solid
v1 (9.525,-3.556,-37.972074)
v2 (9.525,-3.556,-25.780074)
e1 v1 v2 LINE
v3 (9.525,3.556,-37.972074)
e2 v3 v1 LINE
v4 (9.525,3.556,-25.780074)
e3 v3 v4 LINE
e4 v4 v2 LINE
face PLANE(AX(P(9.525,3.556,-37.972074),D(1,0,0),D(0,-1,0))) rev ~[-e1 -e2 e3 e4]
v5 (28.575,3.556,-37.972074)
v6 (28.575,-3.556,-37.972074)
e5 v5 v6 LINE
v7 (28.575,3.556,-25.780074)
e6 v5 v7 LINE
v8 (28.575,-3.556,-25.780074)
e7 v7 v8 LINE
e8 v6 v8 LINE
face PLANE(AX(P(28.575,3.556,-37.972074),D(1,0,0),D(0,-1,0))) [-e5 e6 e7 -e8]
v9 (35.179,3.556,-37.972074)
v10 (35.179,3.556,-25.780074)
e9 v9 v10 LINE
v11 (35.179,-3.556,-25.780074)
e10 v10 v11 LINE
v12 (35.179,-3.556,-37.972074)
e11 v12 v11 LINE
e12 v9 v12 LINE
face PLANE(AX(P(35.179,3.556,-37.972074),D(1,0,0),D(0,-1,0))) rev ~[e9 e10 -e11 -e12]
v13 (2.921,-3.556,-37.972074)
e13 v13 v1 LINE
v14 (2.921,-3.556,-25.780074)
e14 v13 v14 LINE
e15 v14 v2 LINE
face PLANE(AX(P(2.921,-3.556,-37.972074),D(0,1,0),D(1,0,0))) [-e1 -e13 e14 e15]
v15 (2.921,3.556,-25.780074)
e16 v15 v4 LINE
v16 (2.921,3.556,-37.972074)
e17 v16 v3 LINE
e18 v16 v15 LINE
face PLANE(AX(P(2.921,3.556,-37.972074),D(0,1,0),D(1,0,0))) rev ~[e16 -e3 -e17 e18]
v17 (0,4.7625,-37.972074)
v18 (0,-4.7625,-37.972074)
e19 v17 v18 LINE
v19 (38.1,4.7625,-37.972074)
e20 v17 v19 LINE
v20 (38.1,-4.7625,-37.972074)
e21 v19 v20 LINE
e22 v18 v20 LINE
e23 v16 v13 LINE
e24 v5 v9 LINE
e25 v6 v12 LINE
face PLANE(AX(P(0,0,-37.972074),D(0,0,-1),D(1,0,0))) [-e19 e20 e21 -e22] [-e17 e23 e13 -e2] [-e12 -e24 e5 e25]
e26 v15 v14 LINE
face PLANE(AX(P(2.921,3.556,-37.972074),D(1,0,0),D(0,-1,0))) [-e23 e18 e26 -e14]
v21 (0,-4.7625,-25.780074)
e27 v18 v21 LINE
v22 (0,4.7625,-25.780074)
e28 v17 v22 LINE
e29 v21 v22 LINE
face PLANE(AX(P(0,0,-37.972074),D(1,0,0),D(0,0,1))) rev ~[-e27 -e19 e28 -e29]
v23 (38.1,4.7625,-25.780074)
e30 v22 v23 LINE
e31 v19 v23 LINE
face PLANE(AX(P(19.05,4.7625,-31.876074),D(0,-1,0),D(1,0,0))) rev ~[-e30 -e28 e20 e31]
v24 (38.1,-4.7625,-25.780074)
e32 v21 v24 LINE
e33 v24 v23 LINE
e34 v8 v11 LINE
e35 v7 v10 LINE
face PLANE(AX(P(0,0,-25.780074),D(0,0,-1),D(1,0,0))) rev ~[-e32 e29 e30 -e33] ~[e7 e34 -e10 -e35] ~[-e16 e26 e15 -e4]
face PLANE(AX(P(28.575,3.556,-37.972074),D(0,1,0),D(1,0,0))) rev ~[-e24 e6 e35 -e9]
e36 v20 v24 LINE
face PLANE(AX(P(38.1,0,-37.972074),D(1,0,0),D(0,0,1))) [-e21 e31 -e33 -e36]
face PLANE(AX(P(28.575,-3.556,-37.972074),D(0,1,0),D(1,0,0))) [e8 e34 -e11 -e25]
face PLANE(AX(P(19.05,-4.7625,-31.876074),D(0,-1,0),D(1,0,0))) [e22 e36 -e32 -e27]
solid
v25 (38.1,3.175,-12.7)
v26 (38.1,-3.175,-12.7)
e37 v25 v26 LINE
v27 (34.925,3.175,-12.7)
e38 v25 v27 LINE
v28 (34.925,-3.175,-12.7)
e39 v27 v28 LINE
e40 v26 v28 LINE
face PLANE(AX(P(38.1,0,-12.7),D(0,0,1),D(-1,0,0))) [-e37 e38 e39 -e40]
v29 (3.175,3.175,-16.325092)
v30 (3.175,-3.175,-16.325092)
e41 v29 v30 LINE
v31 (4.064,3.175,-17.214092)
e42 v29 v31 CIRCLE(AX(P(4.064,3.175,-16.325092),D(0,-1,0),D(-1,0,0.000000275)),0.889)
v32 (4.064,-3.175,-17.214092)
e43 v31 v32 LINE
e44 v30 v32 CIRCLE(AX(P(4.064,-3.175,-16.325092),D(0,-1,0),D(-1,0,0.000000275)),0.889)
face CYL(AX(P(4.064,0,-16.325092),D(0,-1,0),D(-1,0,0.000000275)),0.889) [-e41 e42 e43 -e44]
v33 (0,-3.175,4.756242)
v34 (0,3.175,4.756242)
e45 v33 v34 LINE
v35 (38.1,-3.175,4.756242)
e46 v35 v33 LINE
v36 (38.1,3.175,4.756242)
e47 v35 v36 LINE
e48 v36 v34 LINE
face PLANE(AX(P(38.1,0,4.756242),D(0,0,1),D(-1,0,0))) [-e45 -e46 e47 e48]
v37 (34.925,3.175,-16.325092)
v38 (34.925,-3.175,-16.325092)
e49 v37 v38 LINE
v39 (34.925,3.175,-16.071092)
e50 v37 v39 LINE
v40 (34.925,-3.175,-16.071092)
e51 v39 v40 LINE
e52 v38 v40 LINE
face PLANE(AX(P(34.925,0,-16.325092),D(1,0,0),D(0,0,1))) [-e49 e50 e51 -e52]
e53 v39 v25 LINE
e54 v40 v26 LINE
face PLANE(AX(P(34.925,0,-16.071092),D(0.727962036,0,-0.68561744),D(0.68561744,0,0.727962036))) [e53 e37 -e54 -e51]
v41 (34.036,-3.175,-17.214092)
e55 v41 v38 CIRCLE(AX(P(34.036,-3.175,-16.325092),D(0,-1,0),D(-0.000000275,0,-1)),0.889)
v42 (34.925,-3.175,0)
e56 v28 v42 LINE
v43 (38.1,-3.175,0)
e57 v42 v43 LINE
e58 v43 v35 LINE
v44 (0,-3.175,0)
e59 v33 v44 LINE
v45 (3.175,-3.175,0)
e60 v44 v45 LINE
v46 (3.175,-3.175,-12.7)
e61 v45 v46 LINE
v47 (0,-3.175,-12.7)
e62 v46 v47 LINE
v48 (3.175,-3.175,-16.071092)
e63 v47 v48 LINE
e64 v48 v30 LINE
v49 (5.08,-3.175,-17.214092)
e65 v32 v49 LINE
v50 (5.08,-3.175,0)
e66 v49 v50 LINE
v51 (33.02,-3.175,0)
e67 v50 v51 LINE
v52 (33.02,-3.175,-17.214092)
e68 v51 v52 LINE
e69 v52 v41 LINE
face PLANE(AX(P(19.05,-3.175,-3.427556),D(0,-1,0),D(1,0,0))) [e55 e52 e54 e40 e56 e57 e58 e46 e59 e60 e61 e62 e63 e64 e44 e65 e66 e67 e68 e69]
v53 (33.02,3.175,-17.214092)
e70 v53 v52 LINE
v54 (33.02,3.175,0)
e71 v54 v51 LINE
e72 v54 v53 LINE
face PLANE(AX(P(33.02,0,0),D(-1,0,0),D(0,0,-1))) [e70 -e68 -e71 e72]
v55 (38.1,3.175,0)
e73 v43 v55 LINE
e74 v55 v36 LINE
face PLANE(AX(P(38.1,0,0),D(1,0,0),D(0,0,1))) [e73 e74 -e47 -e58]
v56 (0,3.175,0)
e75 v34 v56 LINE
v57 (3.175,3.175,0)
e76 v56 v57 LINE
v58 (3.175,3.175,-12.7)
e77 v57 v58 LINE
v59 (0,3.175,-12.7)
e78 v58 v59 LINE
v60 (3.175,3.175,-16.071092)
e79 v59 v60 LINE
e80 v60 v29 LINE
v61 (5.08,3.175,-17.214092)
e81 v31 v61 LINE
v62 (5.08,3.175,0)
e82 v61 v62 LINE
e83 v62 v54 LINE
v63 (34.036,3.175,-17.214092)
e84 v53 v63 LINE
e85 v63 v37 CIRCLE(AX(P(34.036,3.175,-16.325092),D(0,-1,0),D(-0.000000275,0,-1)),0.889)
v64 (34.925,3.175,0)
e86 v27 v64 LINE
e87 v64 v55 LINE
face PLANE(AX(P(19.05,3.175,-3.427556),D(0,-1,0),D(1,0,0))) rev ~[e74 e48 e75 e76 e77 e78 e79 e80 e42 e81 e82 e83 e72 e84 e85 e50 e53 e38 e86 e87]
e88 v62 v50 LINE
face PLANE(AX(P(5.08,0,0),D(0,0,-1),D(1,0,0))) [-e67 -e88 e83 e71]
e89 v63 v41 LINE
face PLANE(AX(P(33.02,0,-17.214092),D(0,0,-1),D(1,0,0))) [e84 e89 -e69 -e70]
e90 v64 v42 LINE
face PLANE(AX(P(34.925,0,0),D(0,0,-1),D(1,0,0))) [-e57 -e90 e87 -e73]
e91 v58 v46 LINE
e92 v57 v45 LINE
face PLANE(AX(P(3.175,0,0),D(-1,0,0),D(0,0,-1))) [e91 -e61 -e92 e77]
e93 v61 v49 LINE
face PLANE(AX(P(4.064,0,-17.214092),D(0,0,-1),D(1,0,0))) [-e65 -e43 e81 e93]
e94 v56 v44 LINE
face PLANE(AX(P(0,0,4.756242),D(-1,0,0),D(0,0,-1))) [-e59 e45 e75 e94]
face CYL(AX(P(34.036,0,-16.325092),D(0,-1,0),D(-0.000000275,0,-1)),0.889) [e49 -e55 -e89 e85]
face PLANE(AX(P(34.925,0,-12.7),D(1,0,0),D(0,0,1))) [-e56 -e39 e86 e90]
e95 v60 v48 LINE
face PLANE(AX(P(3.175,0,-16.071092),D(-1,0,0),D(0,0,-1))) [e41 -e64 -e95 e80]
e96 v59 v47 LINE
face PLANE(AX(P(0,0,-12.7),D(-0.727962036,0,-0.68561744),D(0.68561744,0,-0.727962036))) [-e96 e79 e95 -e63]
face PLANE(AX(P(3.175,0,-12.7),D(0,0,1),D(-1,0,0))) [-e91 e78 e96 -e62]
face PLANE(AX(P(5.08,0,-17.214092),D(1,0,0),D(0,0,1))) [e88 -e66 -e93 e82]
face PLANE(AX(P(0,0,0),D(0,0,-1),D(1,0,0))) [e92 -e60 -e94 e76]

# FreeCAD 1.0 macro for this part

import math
import FreeCAD as App
import Part
import Sketcher
from FreeCAD import Vector
Q = App.Units.Quantity

doc = App.newDocument("Part")
body = doc.addObject("PartDesign::Body", "Body")

# Sketch on XZ plane
sketch1 = body.newObject("Sketcher::SketchObject", "Sketch")
sketch1.AttachmentSupport = (doc.getObject("XZ_Plane"), [""])
sketch1.MapMode = "FlatFace"
sketch1.addGeometry(Part.LineSegment(Vector(0, 4.76, 0), Vector(0, 0, 0)), False)
sketch1.addGeometry(Part.LineSegment(Vector(0, 0, 0), Vector(3.17, 0, 0)), False)
sketch1.addGeometry(Part.LineSegment(Vector(3.17, 0, 0), Vector(3.17, -12.7, 0)), False)
sketch1.addGeometry(Part.LineSegment(Vector(3.17, -12.7, 0), Vector(0, -12.7, 0)), False)
sketch1.addGeometry(Part.LineSegment(Vector(0, -12.7, 0), Vector(3.17, -16.07, 0)), False)
sketch1.addGeometry(Part.LineSegment(Vector(3.17, -16.07, 0), Vector(3.17, -16.33, 0)), False)
sketch1.addGeometry(Part.ArcOfCircle(Part.Circle(Vector(4.06, -16.33, 0), Vector(0, 0, 1), 0.89), math.radians(180), math.radians(270)), False)
sketch1.addGeometry(Part.LineSegment(Vector(4.06, -17.21, 0), Vector(5.08, -17.21, 0)), False)
sketch1.addGeometry(Part.LineSegment(Vector(5.08, -17.21, 0), Vector(5.08, 0, 0)), False)
sketch1.addGeometry(Part.LineSegment(Vector(5.08, 0, 0), Vector(33.02, 0, 0)), False)
sketch1.addGeometry(Part.LineSegment(Vector(33.02, 0, 0), Vector(33.02, -17.21, 0)), False)
sketch1.addGeometry(Part.LineSegment(Vector(33.02, -17.21, 0), Vector(34.04, -17.21, 0)), False)
sketch1.addGeometry(Part.ArcOfCircle(Part.Circle(Vector(34.04, -16.33, 0), Vector(0, 0, 1), 0.89), math.radians(-90), math.radians(0)), False)
sketch1.addGeometry(Part.LineSegment(Vector(34.92, -16.33, 0), Vector(34.92, -16.07, 0)), False)
sketch1.addGeometry(Part.LineSegment(Vector(34.92, -16.07, 0), Vector(38.1, -12.7, 0)), False)
sketch1.addGeometry(Part.LineSegment(Vector(38.1, -12.7, 0), Vector(34.92, -12.7, 0)), False)
sketch1.addGeometry(Part.LineSegment(Vector(34.92, -12.7, 0), Vector(34.92, 0, 0)), False)
sketch1.addGeometry(Part.LineSegment(Vector(34.92, 0, 0), Vector(38.1, 0, 0)), False)
sketch1.addGeometry(Part.LineSegment(Vector(38.1, 0, 0), Vector(38.1, 4.76, 0)), False)
sketch1.addGeometry(Part.LineSegment(Vector(38.1, 4.76, 0), Vector(0, 4.76, 0)), False)
sketch1.addConstraint(Sketcher.Constraint("Coincident", 0, 2, 1, 1))
sketch1.addConstraint(Sketcher.Constraint("Coincident", 1, 2, 2, 1))
sketch1.addConstraint(Sketcher.Constraint("Coincident", 2, 2, 3, 1))
sketch1.addConstraint(Sketcher.Constraint("Coincident", 3, 2, 4, 1))
sketch1.addConstraint(Sketcher.Constraint("Coincident", 4, 2, 5, 1))
sketch1.addConstraint(Sketcher.Constraint("Tangent", 5, 2, 6, 1))
sketch1.addConstraint(Sketcher.Constraint("Tangent", 6, 2, 7, 1))
sketch1.addConstraint(Sketcher.Constraint("Coincident", 7, 2, 8, 1))
sketch1.addConstraint(Sketcher.Constraint("Coincident", 8, 2, 9, 1))
sketch1.addConstraint(Sketcher.Constraint("Coincident", 9, 2, 10, 1))
sketch1.addConstraint(Sketcher.Constraint("Coincident", 10, 2, 11, 1))
sketch1.addConstraint(Sketcher.Constraint("Tangent", 11, 2, 12, 1))
sketch1.addConstraint(Sketcher.Constraint("Tangent", 12, 2, 13, 1))
sketch1.addConstraint(Sketcher.Constraint("Coincident", 13, 2, 14, 1))
sketch1.addConstraint(Sketcher.Constraint("Coincident", 14, 2, 15, 1))
sketch1.addConstraint(Sketcher.Constraint("Coincident", 15, 2, 16, 1))
sketch1.addConstraint(Sketcher.Constraint("Coincident", 16, 2, 17, 1))
sketch1.addConstraint(Sketcher.Constraint("Coincident", 17, 2, 18, 1))
sketch1.addConstraint(Sketcher.Constraint("Coincident", 18, 2, 19, 1))
sketch1.addConstraint(Sketcher.Constraint("Coincident", 19, 2, 0, 1))
sketch1.addConstraint(Sketcher.Constraint("Vertical", 0))
sketch1.addConstraint(Sketcher.Constraint("Horizontal", 1))
sketch1.addConstraint(Sketcher.Constraint("Vertical", 2))
sketch1.addConstraint(Sketcher.Constraint("Horizontal", 3))
sketch1.addConstraint(Sketcher.Constraint("Vertical", 5))
sketch1.addConstraint(Sketcher.Constraint("Horizontal", 7))
sketch1.addConstraint(Sketcher.Constraint("Vertical", 8))
sketch1.addConstraint(Sketcher.Constraint("Horizontal", 9))
sketch1.addConstraint(Sketcher.Constraint("Vertical", 10))
sketch1.addConstraint(Sketcher.Constraint("Horizontal", 11))
sketch1.addConstraint(Sketcher.Constraint("Vertical", 13))
sketch1.addConstraint(Sketcher.Constraint("Horizontal", 15))
sketch1.addConstraint(Sketcher.Constraint("Vertical", 16))
sketch1.addConstraint(Sketcher.Constraint("Horizontal", 17))
sketch1.addConstraint(Sketcher.Constraint("Vertical", 18))
sketch1.addConstraint(Sketcher.Constraint("Horizontal", 19))
sketch1.addConstraint(Sketcher.Constraint("Coincident", 0, 2, -1, 1))
sketch1.addConstraint(Sketcher.Constraint("Equal", 6, 12))
sketch1.addConstraint(Sketcher.Constraint("PointOnObject", 3, 2, -2))
sketch1.addConstraint(Sketcher.Constraint("PointOnObject", 8, 2, -1))
sketch1.addConstraint(Sketcher.Constraint("PointOnObject", 16, 2, -1))
sketch1.addConstraint(Sketcher.Constraint("Horizontal", 6, 3, 12, 3))
sketch1.addConstraint(Sketcher.Constraint("Horizontal", 4, 2, 13, 2))
sketch1.addConstraint(Sketcher.Constraint("Horizontal", 3, 2, 14, 2))
sketch1.addConstraint(Sketcher.Constraint("Vertical", 2, 2, 4, 2))
sketch1.addConstraint(Sketcher.Constraint("Vertical", 13, 2, 15, 2))
sketch1.addConstraint(Sketcher.Constraint("Vertical", 14, 2, 17, 2))
sketch1.addConstraint(Sketcher.Constraint("Equal", 7, 11))
sketch1.addConstraint(Sketcher.Constraint("Equal", 3, 15))
sketch1.addConstraint(Sketcher.Constraint("DistanceX", 9, 1, 9, 2, Q("1.1 in")))
sketch1.addConstraint(Sketcher.Constraint("DistanceX", 19, 2, 19, 1, Q("1.5 in")))
sketch1.addConstraint(Sketcher.Constraint("DistanceY", 2, 2, 2, 1, Q("0.5 in")))
sketch1.addConstraint(Sketcher.Constraint("Radius", 6, Q("0.035 in")))
sketch1.addConstraint(Sketcher.Constraint("DistanceX", 7, 1, 7, 2, Q("0.04 in")))
sketch1.addConstraint(Sketcher.Constraint("DistanceY", 5, 2, 5, 1, Q("0.01 in")))
sketch1.addConstraint(Sketcher.Constraint("DistanceY", 0, 2, 0, 1, Q("4.756242 mm")))
sketch1.addConstraint(Sketcher.Constraint("DistanceY", 8, 1, 8, 2, Q("17.214092 mm")))
pad1 = body.newObject("PartDesign::Pad", "Pad")
pad1.Profile = sketch1
pad1.Length = Q("0.25 in")
pad1.Midplane = True
body2 = doc.addObject("PartDesign::Body", "Body001")

# Sketch on XZ plane
sketch2 = body2.newObject("Sketcher::SketchObject", "Sketch001")
sketch2.AttachmentSupport = (doc.getObject("XZ_Plane001"), [""])
sketch2.MapMode = "FlatFace"
sketch2.addGeometry(Part.LineSegment(Vector(0, -26, 0), Vector(0, -38, 0)), False)
sketch2.addGeometry(Part.LineSegment(Vector(0, -38, 0), Vector(38, -38, 0)), False)
sketch2.addGeometry(Part.LineSegment(Vector(38, -38, 0), Vector(38, -26, 0)), False)
sketch2.addGeometry(Part.LineSegment(Vector(38, -26, 0), Vector(0, -26, 0)), False)
sketch2.addConstraint(Sketcher.Constraint("Coincident", 0, 2, 1, 1))
sketch2.addConstraint(Sketcher.Constraint("Coincident", 1, 2, 2, 1))
sketch2.addConstraint(Sketcher.Constraint("Coincident", 2, 2, 3, 1))
sketch2.addConstraint(Sketcher.Constraint("Coincident", 3, 2, 0, 1))
sketch2.addConstraint(Sketcher.Constraint("Vertical", 0))
sketch2.addConstraint(Sketcher.Constraint("Horizontal", 1))
sketch2.addConstraint(Sketcher.Constraint("Vertical", 2))
sketch2.addConstraint(Sketcher.Constraint("Horizontal", 3))
sketch2.addConstraint(Sketcher.Constraint("PointOnObject", 0, 2, -2))
sketch2.addConstraint(Sketcher.Constraint("DistanceX", 1, 1, 1, 2, Q("1.5 in")))
sketch2.addConstraint(Sketcher.Constraint("DistanceY", 0, 2, 0, 1, Q("0.48 in")))
sketch2.addConstraint(Sketcher.Constraint("DistanceY", 0, 2, -1, 1, Q("37.972074 mm")))
pad2 = body2.newObject("PartDesign::Pad", "Pad001")
pad2.Profile = sketch2
pad2.Length = Q("0.375 in")
pad2.Midplane = True

# Sketch on XY plane
sketch3 = body2.newObject("Sketcher::SketchObject", "Sketch002")
sketch3.AttachmentSupport = (doc.getObject("XY_Plane001"), [""])
sketch3.MapMode = "FlatFace"
sketch3.AttachmentOffset = App.Placement(Vector(0, 0, -37.972074), App.Rotation())
sketch3.addGeometry(Part.LineSegment(Vector(3, -4, 0), Vector(3, 4, 0)), False)
sketch3.addGeometry(Part.LineSegment(Vector(3, 4, 0), Vector(10, 4, 0)), False)
sketch3.addGeometry(Part.LineSegment(Vector(10, 4, 0), Vector(10, -4, 0)), False)
sketch3.addGeometry(Part.LineSegment(Vector(10, -4, 0), Vector(3, -4, 0)), False)
sketch3.addGeometry(Part.LineSegment(Vector(29, -4, 0), Vector(29, 4, 0)), False)
sketch3.addGeometry(Part.LineSegment(Vector(29, 4, 0), Vector(35, 4, 0)), False)
sketch3.addGeometry(Part.LineSegment(Vector(35, 4, 0), Vector(35, -4, 0)), False)
sketch3.addGeometry(Part.LineSegment(Vector(35, -4, 0), Vector(29, -4, 0)), False)
sketch3.addConstraint(Sketcher.Constraint("Coincident", 0, 2, 1, 1))
sketch3.addConstraint(Sketcher.Constraint("Coincident", 1, 2, 2, 1))
sketch3.addConstraint(Sketcher.Constraint("Coincident", 2, 2, 3, 1))
sketch3.addConstraint(Sketcher.Constraint("Coincident", 3, 2, 0, 1))
sketch3.addConstraint(Sketcher.Constraint("Coincident", 4, 2, 5, 1))
sketch3.addConstraint(Sketcher.Constraint("Coincident", 5, 2, 6, 1))
sketch3.addConstraint(Sketcher.Constraint("Coincident", 6, 2, 7, 1))
sketch3.addConstraint(Sketcher.Constraint("Coincident", 7, 2, 4, 1))
sketch3.addConstraint(Sketcher.Constraint("Vertical", 0))
sketch3.addConstraint(Sketcher.Constraint("Horizontal", 1))
sketch3.addConstraint(Sketcher.Constraint("Vertical", 2))
sketch3.addConstraint(Sketcher.Constraint("Horizontal", 3))
sketch3.addConstraint(Sketcher.Constraint("Vertical", 4))
sketch3.addConstraint(Sketcher.Constraint("Horizontal", 5))
sketch3.addConstraint(Sketcher.Constraint("Vertical", 6))
sketch3.addConstraint(Sketcher.Constraint("Horizontal", 7))
sketch3.addConstraint(Sketcher.Constraint("Horizontal", 1, 2, 4, 2))
sketch3.addConstraint(Sketcher.Constraint("Horizontal", 3, 2, 6, 2))
sketch3.addConstraint(Sketcher.Constraint("Equal", 3, 5))
sketch3.addConstraint(Sketcher.Constraint("DistanceX", 1, 1, 1, 2, Q("0.26 in")))
sketch3.addConstraint(Sketcher.Constraint("DistanceY", 0, 1, 0, 2, Q("0.28 in")))
sketch3.addConstraint(Sketcher.Constraint("DistanceY", -1, 1, 0, 2, Q("0.14 in")))
sketch3.addConstraint(Sketcher.Constraint("DistanceX", 1, 2, 4, 2, Q("0.75 in")))
sketch3.addConstraint(Sketcher.Constraint("DistanceX", -1, 1, 0, 2, Q("0.115 in")))
pocket1 = body2.newObject("PartDesign::Pocket", "Pocket")
pocket1.Profile = sketch3
pocket1.Length = Q("0.51 in")
pocket1.Reversed = True

doc.recompute()
